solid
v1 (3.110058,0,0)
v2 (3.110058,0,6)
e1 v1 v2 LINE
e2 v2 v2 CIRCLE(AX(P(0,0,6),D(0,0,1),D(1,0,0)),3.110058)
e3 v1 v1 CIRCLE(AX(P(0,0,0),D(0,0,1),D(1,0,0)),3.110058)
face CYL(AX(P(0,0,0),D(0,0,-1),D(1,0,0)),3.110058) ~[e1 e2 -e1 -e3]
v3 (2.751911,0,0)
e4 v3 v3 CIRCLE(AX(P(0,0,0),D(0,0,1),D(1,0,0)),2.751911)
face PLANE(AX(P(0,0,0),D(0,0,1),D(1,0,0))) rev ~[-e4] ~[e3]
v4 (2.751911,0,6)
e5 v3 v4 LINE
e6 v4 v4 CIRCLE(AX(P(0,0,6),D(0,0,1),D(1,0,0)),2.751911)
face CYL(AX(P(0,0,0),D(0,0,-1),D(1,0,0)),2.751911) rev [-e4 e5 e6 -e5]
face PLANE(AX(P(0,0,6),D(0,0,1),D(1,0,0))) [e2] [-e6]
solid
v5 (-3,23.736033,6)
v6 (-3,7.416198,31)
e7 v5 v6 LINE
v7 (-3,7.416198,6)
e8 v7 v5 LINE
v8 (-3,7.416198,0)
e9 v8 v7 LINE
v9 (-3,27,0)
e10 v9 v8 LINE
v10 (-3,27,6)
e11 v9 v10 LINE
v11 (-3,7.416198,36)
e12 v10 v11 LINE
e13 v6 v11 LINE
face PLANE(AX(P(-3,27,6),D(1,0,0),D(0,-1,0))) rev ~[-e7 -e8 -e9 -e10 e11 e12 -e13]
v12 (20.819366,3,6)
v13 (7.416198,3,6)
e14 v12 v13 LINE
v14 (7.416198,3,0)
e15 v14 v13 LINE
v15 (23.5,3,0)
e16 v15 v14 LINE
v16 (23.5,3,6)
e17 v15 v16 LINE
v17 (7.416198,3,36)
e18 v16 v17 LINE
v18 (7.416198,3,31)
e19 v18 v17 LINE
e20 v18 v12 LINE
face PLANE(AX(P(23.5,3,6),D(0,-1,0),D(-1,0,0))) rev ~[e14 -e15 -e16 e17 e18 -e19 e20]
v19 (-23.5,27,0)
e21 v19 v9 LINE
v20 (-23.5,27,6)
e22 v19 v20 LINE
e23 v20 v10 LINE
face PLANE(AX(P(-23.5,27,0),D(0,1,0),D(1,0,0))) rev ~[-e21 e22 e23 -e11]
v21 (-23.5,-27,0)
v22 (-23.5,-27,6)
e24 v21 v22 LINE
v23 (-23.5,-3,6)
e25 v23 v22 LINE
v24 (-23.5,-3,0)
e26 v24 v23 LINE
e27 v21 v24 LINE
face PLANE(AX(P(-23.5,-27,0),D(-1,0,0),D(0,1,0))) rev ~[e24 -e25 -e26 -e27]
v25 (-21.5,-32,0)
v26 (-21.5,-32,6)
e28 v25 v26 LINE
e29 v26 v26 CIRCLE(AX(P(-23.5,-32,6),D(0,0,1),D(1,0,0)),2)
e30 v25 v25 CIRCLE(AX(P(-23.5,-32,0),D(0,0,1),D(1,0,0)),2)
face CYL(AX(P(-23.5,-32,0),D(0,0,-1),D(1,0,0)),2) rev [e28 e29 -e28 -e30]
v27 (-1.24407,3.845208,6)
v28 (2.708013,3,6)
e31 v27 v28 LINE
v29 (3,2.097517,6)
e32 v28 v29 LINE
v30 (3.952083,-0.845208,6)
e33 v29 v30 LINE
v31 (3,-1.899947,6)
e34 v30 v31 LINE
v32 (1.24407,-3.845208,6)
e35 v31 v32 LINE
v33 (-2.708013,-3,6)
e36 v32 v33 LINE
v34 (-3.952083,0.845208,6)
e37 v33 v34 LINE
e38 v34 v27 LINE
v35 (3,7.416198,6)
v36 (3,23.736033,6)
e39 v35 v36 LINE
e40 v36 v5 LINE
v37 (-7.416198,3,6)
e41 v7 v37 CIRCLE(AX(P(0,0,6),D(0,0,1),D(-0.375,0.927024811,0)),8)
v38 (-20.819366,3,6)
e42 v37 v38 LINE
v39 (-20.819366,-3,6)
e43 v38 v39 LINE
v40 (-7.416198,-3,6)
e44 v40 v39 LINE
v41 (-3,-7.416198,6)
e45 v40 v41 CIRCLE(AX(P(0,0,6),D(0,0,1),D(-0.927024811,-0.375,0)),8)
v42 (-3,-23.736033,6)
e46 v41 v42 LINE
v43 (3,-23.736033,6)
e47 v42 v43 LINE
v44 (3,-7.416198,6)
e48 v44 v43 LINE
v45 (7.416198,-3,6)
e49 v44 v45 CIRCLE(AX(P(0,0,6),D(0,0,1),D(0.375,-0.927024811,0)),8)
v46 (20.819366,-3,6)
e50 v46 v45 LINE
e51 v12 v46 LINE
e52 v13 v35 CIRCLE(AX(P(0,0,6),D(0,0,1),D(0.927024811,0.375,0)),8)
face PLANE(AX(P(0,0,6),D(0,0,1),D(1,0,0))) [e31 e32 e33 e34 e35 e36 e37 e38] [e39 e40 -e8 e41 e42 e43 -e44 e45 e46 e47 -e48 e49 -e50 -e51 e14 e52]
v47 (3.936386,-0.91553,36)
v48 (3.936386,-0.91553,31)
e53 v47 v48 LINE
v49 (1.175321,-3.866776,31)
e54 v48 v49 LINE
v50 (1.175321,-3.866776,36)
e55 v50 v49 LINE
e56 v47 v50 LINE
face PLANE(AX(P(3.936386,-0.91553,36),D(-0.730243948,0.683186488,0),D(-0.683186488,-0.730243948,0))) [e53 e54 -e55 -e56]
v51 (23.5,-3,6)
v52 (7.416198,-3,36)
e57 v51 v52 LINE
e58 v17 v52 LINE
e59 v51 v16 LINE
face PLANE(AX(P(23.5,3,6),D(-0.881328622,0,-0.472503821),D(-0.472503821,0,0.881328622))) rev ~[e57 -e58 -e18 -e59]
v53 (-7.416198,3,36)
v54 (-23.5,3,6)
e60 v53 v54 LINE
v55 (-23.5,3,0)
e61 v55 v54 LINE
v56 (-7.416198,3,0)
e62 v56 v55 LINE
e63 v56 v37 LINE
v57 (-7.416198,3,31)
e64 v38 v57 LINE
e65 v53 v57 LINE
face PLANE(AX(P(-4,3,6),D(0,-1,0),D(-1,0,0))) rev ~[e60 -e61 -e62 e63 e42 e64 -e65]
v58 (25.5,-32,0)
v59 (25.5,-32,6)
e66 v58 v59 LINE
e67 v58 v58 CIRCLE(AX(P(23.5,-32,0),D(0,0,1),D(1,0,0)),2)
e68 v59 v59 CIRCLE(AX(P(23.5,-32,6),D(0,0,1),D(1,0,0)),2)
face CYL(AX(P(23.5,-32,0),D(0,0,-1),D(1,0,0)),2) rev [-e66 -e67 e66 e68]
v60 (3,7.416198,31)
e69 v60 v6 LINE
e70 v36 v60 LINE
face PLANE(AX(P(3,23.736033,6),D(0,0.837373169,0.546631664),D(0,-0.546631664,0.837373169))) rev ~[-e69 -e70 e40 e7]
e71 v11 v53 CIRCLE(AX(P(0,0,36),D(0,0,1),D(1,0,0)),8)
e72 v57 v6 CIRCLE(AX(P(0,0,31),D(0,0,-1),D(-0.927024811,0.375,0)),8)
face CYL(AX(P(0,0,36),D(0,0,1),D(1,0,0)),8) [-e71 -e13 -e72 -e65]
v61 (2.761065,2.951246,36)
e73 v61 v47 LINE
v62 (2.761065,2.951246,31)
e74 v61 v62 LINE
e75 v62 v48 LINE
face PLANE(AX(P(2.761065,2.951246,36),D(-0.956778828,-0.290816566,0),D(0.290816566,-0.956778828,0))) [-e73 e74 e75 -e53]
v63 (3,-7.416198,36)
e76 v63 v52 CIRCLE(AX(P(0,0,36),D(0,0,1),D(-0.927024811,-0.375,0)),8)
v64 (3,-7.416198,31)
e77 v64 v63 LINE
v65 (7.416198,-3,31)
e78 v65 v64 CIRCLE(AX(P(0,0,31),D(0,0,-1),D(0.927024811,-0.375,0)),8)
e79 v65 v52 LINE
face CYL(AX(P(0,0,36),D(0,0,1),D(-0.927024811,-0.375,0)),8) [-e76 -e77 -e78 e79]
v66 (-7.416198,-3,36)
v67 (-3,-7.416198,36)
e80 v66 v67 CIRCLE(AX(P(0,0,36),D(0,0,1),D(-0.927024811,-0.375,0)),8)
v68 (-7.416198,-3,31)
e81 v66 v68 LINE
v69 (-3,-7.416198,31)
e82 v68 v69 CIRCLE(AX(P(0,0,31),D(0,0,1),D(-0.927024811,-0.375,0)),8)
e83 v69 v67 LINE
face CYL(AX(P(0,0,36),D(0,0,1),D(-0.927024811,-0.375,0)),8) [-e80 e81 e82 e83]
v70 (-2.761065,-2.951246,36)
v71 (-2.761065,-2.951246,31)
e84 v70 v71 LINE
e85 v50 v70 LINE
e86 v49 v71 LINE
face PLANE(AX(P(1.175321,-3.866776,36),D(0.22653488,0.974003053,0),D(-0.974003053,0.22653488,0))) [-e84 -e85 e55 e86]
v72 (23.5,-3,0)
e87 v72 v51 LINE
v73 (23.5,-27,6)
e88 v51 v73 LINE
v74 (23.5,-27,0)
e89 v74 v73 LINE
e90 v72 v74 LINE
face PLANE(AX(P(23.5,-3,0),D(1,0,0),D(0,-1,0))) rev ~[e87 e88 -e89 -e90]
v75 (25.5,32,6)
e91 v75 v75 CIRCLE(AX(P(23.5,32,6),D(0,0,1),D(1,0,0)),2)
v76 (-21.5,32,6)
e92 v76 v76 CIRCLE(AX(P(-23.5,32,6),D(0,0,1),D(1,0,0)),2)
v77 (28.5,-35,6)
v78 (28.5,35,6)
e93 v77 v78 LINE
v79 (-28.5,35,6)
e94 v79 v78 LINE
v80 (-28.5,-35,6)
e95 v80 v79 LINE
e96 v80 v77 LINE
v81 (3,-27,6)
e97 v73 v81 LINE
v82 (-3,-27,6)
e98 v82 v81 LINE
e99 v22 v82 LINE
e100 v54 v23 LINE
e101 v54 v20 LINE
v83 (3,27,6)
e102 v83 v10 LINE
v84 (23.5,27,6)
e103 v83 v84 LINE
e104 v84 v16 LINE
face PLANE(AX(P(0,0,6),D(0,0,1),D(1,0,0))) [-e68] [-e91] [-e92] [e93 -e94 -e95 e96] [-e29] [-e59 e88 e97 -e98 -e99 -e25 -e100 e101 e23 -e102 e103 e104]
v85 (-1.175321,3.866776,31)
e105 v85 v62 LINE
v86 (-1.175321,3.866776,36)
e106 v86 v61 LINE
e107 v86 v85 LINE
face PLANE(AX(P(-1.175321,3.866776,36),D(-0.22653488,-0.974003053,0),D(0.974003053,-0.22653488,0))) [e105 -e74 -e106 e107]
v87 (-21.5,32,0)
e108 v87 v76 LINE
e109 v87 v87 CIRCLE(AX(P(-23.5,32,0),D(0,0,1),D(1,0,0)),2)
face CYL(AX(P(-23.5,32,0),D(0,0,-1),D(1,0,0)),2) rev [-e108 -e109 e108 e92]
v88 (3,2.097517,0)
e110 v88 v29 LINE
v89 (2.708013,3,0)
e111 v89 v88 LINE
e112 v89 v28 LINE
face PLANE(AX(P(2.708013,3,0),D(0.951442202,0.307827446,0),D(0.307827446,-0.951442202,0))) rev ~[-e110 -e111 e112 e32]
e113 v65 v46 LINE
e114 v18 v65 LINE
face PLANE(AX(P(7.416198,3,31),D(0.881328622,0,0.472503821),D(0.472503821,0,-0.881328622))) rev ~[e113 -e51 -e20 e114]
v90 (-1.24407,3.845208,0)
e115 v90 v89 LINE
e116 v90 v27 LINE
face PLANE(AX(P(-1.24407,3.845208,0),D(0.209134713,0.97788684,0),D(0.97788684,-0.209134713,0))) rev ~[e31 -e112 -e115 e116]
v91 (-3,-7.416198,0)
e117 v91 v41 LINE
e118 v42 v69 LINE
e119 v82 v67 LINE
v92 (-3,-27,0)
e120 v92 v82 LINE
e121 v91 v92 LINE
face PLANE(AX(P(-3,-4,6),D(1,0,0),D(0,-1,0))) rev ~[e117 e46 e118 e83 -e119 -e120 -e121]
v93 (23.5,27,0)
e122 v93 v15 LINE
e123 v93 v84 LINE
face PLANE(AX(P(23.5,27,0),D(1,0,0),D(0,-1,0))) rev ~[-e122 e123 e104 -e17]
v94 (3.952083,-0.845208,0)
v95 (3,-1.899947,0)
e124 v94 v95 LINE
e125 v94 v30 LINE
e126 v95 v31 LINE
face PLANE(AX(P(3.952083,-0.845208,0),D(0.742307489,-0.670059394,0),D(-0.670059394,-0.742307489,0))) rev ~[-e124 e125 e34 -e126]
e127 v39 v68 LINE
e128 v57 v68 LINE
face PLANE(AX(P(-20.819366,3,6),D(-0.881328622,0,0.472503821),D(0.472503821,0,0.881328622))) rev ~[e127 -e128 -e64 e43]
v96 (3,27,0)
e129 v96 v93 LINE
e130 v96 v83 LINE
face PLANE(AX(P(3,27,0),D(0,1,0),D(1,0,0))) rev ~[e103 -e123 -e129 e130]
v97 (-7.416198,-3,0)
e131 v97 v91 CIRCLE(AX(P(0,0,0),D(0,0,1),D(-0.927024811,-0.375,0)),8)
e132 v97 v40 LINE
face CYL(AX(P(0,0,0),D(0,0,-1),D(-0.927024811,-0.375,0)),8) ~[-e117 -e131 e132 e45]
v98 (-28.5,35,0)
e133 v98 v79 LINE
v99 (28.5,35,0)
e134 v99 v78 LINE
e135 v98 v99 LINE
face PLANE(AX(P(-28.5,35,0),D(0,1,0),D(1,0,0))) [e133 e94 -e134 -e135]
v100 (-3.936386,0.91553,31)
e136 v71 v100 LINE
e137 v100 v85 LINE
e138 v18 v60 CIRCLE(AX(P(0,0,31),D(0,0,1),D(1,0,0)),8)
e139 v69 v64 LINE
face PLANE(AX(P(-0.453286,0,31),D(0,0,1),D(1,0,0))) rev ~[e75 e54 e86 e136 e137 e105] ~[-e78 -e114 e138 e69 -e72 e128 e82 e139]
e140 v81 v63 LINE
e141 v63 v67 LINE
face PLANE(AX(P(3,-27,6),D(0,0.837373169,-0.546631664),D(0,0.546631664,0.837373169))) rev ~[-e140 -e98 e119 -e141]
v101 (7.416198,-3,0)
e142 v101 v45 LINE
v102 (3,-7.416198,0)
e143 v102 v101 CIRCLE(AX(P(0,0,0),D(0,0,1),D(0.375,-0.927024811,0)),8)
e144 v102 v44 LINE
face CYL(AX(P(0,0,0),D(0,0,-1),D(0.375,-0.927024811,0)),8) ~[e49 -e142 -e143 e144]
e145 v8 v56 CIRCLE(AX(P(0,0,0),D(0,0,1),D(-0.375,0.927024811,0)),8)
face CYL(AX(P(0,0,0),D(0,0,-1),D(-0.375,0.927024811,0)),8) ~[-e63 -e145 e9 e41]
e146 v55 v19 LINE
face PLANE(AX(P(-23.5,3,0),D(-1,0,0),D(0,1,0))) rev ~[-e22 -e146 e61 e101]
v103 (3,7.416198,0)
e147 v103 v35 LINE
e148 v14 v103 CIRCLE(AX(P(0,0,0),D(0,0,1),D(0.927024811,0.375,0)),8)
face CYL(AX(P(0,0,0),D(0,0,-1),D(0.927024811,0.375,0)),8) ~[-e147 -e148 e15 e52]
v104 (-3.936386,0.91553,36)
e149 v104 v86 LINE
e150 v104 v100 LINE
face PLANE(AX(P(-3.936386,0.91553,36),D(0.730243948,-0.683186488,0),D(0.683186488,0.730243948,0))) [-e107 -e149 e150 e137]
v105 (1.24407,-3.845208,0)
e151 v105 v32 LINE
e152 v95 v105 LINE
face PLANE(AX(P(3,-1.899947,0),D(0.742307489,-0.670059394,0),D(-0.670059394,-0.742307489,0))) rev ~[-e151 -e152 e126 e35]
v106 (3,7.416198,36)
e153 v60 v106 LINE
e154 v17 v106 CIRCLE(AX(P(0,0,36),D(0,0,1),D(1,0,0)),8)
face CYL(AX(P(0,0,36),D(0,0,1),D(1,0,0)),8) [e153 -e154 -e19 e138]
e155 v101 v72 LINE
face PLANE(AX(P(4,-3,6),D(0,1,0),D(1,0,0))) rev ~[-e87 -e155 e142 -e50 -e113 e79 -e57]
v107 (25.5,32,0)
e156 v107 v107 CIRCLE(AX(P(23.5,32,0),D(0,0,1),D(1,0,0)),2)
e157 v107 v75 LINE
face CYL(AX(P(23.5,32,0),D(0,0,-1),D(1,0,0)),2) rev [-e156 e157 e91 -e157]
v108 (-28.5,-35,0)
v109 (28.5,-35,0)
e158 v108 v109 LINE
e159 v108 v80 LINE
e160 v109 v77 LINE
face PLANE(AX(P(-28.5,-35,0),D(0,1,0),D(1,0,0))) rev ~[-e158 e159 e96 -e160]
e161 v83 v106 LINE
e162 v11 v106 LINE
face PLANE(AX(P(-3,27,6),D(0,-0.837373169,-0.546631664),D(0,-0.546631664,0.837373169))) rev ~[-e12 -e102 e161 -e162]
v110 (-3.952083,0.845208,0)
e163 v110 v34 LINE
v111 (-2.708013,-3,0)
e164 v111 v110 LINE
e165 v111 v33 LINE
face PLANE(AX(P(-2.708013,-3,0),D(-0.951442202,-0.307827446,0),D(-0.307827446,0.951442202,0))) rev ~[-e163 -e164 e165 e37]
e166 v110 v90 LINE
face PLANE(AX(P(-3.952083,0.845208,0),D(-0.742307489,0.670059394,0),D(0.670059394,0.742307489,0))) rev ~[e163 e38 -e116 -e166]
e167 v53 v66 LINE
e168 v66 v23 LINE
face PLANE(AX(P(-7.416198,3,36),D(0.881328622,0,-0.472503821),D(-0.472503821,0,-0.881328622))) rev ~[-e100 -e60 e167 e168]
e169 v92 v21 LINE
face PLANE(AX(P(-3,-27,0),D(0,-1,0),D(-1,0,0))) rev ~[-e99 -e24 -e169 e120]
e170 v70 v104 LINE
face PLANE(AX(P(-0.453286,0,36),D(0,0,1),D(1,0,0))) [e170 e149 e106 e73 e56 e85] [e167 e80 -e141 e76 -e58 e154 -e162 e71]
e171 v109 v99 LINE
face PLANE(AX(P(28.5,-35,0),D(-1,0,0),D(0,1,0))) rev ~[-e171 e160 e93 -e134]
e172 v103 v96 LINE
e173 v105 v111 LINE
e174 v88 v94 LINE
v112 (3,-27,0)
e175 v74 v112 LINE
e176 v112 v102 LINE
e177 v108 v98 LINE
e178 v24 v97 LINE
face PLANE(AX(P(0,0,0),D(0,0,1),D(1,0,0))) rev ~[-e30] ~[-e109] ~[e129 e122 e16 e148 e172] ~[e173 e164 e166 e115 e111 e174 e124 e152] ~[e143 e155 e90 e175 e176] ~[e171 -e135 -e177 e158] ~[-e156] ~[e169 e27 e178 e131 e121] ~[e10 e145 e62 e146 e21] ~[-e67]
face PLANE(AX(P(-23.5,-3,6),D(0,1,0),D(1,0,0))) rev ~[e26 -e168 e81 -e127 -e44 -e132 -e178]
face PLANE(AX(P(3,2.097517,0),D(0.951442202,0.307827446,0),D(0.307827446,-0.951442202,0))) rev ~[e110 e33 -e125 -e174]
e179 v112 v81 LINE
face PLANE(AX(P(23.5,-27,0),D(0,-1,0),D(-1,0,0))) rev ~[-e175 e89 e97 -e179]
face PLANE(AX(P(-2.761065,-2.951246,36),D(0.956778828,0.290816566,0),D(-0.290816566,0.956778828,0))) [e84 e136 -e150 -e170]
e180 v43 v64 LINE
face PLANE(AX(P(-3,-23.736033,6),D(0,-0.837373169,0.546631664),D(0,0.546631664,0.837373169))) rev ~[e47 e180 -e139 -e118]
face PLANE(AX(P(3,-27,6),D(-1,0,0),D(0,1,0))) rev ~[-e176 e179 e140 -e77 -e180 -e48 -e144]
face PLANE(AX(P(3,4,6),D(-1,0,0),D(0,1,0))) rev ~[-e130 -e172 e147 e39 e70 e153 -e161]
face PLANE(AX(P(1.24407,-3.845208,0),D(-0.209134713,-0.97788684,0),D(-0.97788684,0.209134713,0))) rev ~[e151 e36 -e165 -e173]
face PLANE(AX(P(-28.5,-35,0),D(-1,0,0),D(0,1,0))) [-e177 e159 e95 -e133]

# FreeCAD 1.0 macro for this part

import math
import FreeCAD as App
import Part
import Sketcher
from FreeCAD import Vector

doc = App.newDocument("Part")
body = doc.addObject("PartDesign::Body", "Body")

# Sketch on XY plane
sketch1 = doc.addObject("Sketcher::SketchObject", "Sketch")
body.addObject(sketch1)
sketch1.AttachmentSupport = (doc.XY_Plane, [""])
sketch1.MapMode = "FlatFace"
sketch1.addGeometry(Part.LineSegment(Vector(-28.5, 35, 0), Vector(-28.5, -35, 0)), False)
sketch1.addGeometry(Part.LineSegment(Vector(-28.5, -35, 0), Vector(28.5, -35, 0)), False)
sketch1.addGeometry(Part.LineSegment(Vector(28.5, -35, 0), Vector(28.5, 35, 0)), False)
sketch1.addGeometry(Part.LineSegment(Vector(28.5, 35, 0), Vector(-28.5, 35, 0)), False)
sketch1.addGeometry(Part.Circle(Vector(-23.5, -32, 0), Vector(0, 0, 1), 2), False)
sketch1.addGeometry(Part.LineSegment(Vector(-3, -7.416198, 0), Vector(-3, -27, 0)), False)
sketch1.addGeometry(Part.LineSegment(Vector(-3, -27, 0), Vector(-23.5, -27, 0)), False)
sketch1.addGeometry(Part.LineSegment(Vector(-23.5, -27, 0), Vector(-23.5, -3, 0)), False)
sketch1.addGeometry(Part.LineSegment(Vector(-23.5, -3, 0), Vector(-7.416198, -3, 0)), False)
sketch1.addGeometry(Part.ArcOfCircle(Part.Circle(Vector(0, 0, 0), Vector(0, 0, 1), 8), math.radians(-157.975687), math.radians(-112.024313)), False)
sketch1.addGeometry(Part.Circle(Vector(23.5, -32, 0), Vector(0, 0, 1), 2), False)
sketch1.addGeometry(Part.LineSegment(Vector(7.416198, -3, 0), Vector(23.5, -3, 0)), False)
sketch1.addGeometry(Part.LineSegment(Vector(23.5, -3, 0), Vector(23.5, -27, 0)), False)
sketch1.addGeometry(Part.LineSegment(Vector(23.5, -27, 0), Vector(3, -27, 0)), False)
sketch1.addGeometry(Part.LineSegment(Vector(3, -27, 0), Vector(3, -7.416198, 0)), False)
sketch1.addGeometry(Part.ArcOfCircle(Part.Circle(Vector(0, 0, 0), Vector(0, 0, 1), 8), math.radians(-67.975687), math.radians(-22.024313)), False)
sketch1.addGeometry(Part.LineSegment(Vector(-7.416198, 3, 0), Vector(-23.5, 3, 0)), False)
sketch1.addGeometry(Part.LineSegment(Vector(-23.5, 3, 0), Vector(-23.5, 27, 0)), False)
sketch1.addGeometry(Part.LineSegment(Vector(-23.5, 27, 0), Vector(-3, 27, 0)), False)
sketch1.addGeometry(Part.LineSegment(Vector(-3, 27, 0), Vector(-3, 7.416198, 0)), False)
sketch1.addGeometry(Part.ArcOfCircle(Part.Circle(Vector(0, 0, 0), Vector(0, 0, 1), 8), math.radians(112.024313), math.radians(157.975687)), False)
sketch1.addGeometry(Part.Circle(Vector(-23.5, 32, 0), Vector(0, 0, 1), 2), False)
sketch1.addGeometry(Part.LineSegment(Vector(1.24407, -3.845208, 0), Vector(-2.708013, -3, 0)), False)
sketch1.addGeometry(Part.LineSegment(Vector(-2.708013, -3, 0), Vector(-3.952083, 0.845208, 0)), False)
sketch1.addGeometry(Part.LineSegment(Vector(-3.952083, 0.845208, 0), Vector(-1.24407, 3.845208, 0)), False)
sketch1.addGeometry(Part.LineSegment(Vector(-1.24407, 3.845208, 0), Vector(2.708013, 3, 0)), False)
sketch1.addGeometry(Part.LineSegment(Vector(2.708013, 3, 0), Vector(3, 2.097517, 0)), False)
sketch1.addGeometry(Part.LineSegment(Vector(3, 2.097517, 0), Vector(3.952083, -0.845208, 0)), False)
sketch1.addGeometry(Part.LineSegment(Vector(3.952083, -0.845208, 0), Vector(3, -1.899947, 0)), False)
sketch1.addGeometry(Part.LineSegment(Vector(3, -1.899947, 0), Vector(1.24407, -3.845208, 0)), False)
sketch1.addGeometry(Part.LineSegment(Vector(23.5, 27, 0), Vector(23.5, 3, 0)), False)
sketch1.addGeometry(Part.LineSegment(Vector(23.5, 3, 0), Vector(7.416198, 3, 0)), False)
sketch1.addGeometry(Part.ArcOfCircle(Part.Circle(Vector(0, 0, 0), Vector(0, 0, 1), 8), math.radians(22.024313), math.radians(67.975687)), False)
sketch1.addGeometry(Part.LineSegment(Vector(3, 7.416198, 0), Vector(3, 27, 0)), False)
sketch1.addGeometry(Part.LineSegment(Vector(3, 27, 0), Vector(23.5, 27, 0)), False)
sketch1.addGeometry(Part.Circle(Vector(23.5, 32, 0), Vector(0, 0, 1), 2), False)
sketch1.addConstraint(Sketcher.Constraint("Coincident", 0, 2, 1, 1))
sketch1.addConstraint(Sketcher.Constraint("Coincident", 1, 2, 2, 1))
sketch1.addConstraint(Sketcher.Constraint("Coincident", 2, 2, 3, 1))
sketch1.addConstraint(Sketcher.Constraint("Coincident", 3, 2, 0, 1))
sketch1.addConstraint(Sketcher.Constraint("Coincident", 5, 2, 6, 1))
sketch1.addConstraint(Sketcher.Constraint("Coincident", 6, 2, 7, 1))
sketch1.addConstraint(Sketcher.Constraint("Coincident", 7, 2, 8, 1))
sketch1.addConstraint(Sketcher.Constraint("Coincident", 8, 2, 9, 1))
sketch1.addConstraint(Sketcher.Constraint("Coincident", 9, 2, 5, 1))
sketch1.addConstraint(Sketcher.Constraint("Coincident", 11, 2, 12, 1))
sketch1.addConstraint(Sketcher.Constraint("Coincident", 12, 2, 13, 1))
sketch1.addConstraint(Sketcher.Constraint("Coincident", 13, 2, 14, 1))
sketch1.addConstraint(Sketcher.Constraint("Coincident", 14, 2, 15, 1))
sketch1.addConstraint(Sketcher.Constraint("Coincident", 15, 2, 11, 1))
sketch1.addConstraint(Sketcher.Constraint("Coincident", 16, 2, 17, 1))
sketch1.addConstraint(Sketcher.Constraint("Coincident", 17, 2, 18, 1))
sketch1.addConstraint(Sketcher.Constraint("Coincident", 18, 2, 19, 1))
sketch1.addConstraint(Sketcher.Constraint("Coincident", 19, 2, 20, 1))
sketch1.addConstraint(Sketcher.Constraint("Coincident", 20, 2, 16, 1))
sketch1.addConstraint(Sketcher.Constraint("Coincident", 22, 2, 23, 1))
sketch1.addConstraint(Sketcher.Constraint("Coincident", 23, 2, 24, 1))
sketch1.addConstraint(Sketcher.Constraint("Coincident", 24, 2, 25, 1))
sketch1.addConstraint(Sketcher.Constraint("Coincident", 25, 2, 26, 1))
sketch1.addConstraint(Sketcher.Constraint("Coincident", 26, 2, 27, 1))
sketch1.addConstraint(Sketcher.Constraint("Coincident", 27, 2, 28, 1))
sketch1.addConstraint(Sketcher.Constraint("Coincident", 28, 2, 29, 1))
sketch1.addConstraint(Sketcher.Constraint("Coincident", 29, 2, 22, 1))
sketch1.addConstraint(Sketcher.Constraint("Coincident", 30, 2, 31, 1))
sketch1.addConstraint(Sketcher.Constraint("Coincident", 31, 2, 32, 1))
sketch1.addConstraint(Sketcher.Constraint("Coincident", 32, 2, 33, 1))
sketch1.addConstraint(Sketcher.Constraint("Coincident", 33, 2, 34, 1))
sketch1.addConstraint(Sketcher.Constraint("Coincident", 34, 2, 30, 1))
sketch1.addConstraint(Sketcher.Constraint("Vertical", 0))
sketch1.addConstraint(Sketcher.Constraint("Horizontal", 1))
sketch1.addConstraint(Sketcher.Constraint("Vertical", 2))
sketch1.addConstraint(Sketcher.Constraint("Horizontal", 3))
sketch1.addConstraint(Sketcher.Constraint("Vertical", 5))
sketch1.addConstraint(Sketcher.Constraint("Horizontal", 6))
sketch1.addConstraint(Sketcher.Constraint("Vertical", 7))
sketch1.addConstraint(Sketcher.Constraint("Horizontal", 8))
sketch1.addConstraint(Sketcher.Constraint("Horizontal", 11))
sketch1.addConstraint(Sketcher.Constraint("Vertical", 12))
sketch1.addConstraint(Sketcher.Constraint("Horizontal", 13))
sketch1.addConstraint(Sketcher.Constraint("Vertical", 14))
sketch1.addConstraint(Sketcher.Constraint("Horizontal", 16))
sketch1.addConstraint(Sketcher.Constraint("Vertical", 17))
sketch1.addConstraint(Sketcher.Constraint("Horizontal", 18))
sketch1.addConstraint(Sketcher.Constraint("Vertical", 19))
sketch1.addConstraint(Sketcher.Constraint("Vertical", 30))
sketch1.addConstraint(Sketcher.Constraint("Horizontal", 31))
sketch1.addConstraint(Sketcher.Constraint("Vertical", 33))
sketch1.addConstraint(Sketcher.Constraint("Horizontal", 34))
sketch1.addConstraint(Sketcher.Constraint("Coincident", 9, 3, -1, 1))
sketch1.addConstraint(Sketcher.Constraint("Coincident", 15, 3, -1, 1))
sketch1.addConstraint(Sketcher.Constraint("Coincident", 20, 3, -1, 1))
sketch1.addConstraint(Sketcher.Constraint("Coincident", 32, 3, -1, 1))
sketch1.addConstraint(Sketcher.Constraint("Equal", 4, 10))
sketch1.addConstraint(Sketcher.Constraint("Equal", 9, 15))
sketch1.addConstraint(Sketcher.Constraint("Equal", 15, 20))
sketch1.addConstraint(Sketcher.Constraint("Equal", 10, 21))
sketch1.addConstraint(Sketcher.Constraint("Equal", 20, 32))
sketch1.addConstraint(Sketcher.Constraint("Equal", 21, 35))
sketch1.addConstraint(Sketcher.Constraint("Symmetric", 10, 3, 21, 3, -1, 1))
sketch1.addConstraint(Sketcher.Constraint("Symmetric", 4, 3, 35, 3, -1, 1))
sketch1.addConstraint(Sketcher.Constraint("Symmetric", 0, 2, 2, 2, -1, 1))
sketch1.addConstraint(Sketcher.Constraint("Symmetric", 11, 2, 16, 2, -1, 1))
sketch1.addConstraint(Sketcher.Constraint("Symmetric", 13, 2, 18, 2, -1, 1))
sketch1.addConstraint(Sketcher.Constraint("Symmetric", 22, 2, 25, 2, -1, 1))
sketch1.addConstraint(Sketcher.Constraint("Symmetric", 23, 2, 27, 2, -1, 1))
sketch1.addConstraint(Sketcher.Constraint("Symmetric", 24, 2, 29, 2, -1, 1))
sketch1.addConstraint(Sketcher.Constraint("Symmetric", 7, 2, 30, 2, -1, 1))
sketch1.addConstraint(Sketcher.Constraint("Symmetric", 5, 2, 33, 2, -1, 1))
sketch1.addConstraint(Sketcher.Constraint("Symmetric", 4, 3, 10, 3, -2))
sketch1.addConstraint(Sketcher.Constraint("Symmetric", 7, 2, 11, 2, -2))
sketch1.addConstraint(Sketcher.Constraint("Symmetric", 5, 2, 13, 2, -2))
sketch1.addConstraint(Sketcher.Constraint("Parallel", 23, 26))
sketch1.addConstraint(Sketcher.Constraint("Parallel", 24, 28))
sketch1.addConstraint(Sketcher.Constraint("Horizontal", 15, 2, 22, 2))
sketch1.addConstraint(Sketcher.Constraint("Vertical", 21, 3, 6, 2))
sketch1.addConstraint(Sketcher.Constraint("Vertical", 14, 2, 26, 2))
sketch1.addConstraint(Sketcher.Constraint("Vertical", 26, 2, 28, 2))
sketch1.addConstraint(Sketcher.Constraint("Equal", 22, 23))
sketch1.addConstraint(Sketcher.Constraint("Equal", 23, 24))
sketch1.addConstraint(Sketcher.Constraint("Diameter", 4, 4.0))
sketch1.addConstraint(Sketcher.Constraint("Radius", 9, 8.0))
sketch1.addConstraint(Sketcher.Constraint("DistanceX", 1, 1, 1, 2, 57.0))
sketch1.addConstraint(Sketcher.Constraint("DistanceY", 0, 2, 0, 1, 70.0))
sketch1.addConstraint(Sketcher.Constraint("DistanceY", 7, 1, 7, 2, 24.0))
sketch1.addConstraint(Sketcher.Constraint("DistanceX", 6, 2, 6, 1, 20.5))
sketch1.addConstraint(Sketcher.Constraint("DistanceY", 4, 3, -1, 1, 32.0))
sketch1.addConstraint(Sketcher.Constraint("DistanceX", 5, 2, -1, 1, 3.0))
sketch1.addConstraint(Sketcher.Constraint("DistanceY", 5, 2, -1, 1, 27.0))
sketch1.addConstraint(Sketcher.Constraint("DistanceY", 23, 2, 24, 2, 3.0))
sketch1.addConstraint(Sketcher.Constraint("Distance", 22, 4.041452))
sketch1.addConstraint(Sketcher.Constraint("Distance", 26, 0.948542))
pad1 = doc.addObject("PartDesign::Pad", "Pad")
body.addObject(pad1)
pad1.Profile = sketch1
pad1.Length = 6

# Sketch on XY plane
sketch2 = doc.addObject("Sketcher::SketchObject", "Sketch001")
body.addObject(sketch2)
sketch2.AttachmentSupport = (doc.XY_Plane, [""])
sketch2.MapMode = "FlatFace"
sketch2.AttachmentOffset = App.Placement(Vector(0, 0, 6), App.Rotation())
sketch2.addGeometry(Part.ArcOfCircle(Part.Circle(Vector(0, 0, 0), Vector(0, 0, 1), 5), math.radians(-126.869898), math.radians(-53.130102)), False)
sketch2.addGeometry(Part.LineSegment(Vector(-3, -4, 0), Vector(-3, -27, 0)), False)
sketch2.addGeometry(Part.LineSegment(Vector(-3, -27, 0), Vector(3, -27, 0)), False)
sketch2.addGeometry(Part.LineSegment(Vector(3, -27, 0), Vector(3, -4, 0)), False)
sketch2.addGeometry(Part.LineSegment(Vector(23.5, 3, 0), Vector(4, 3, 0)), False)
sketch2.addGeometry(Part.ArcOfCircle(Part.Circle(Vector(0, 0, 0), Vector(0, 0, 1), 5), math.radians(0), math.radians(36.869898)), False)
sketch2.addGeometry(Part.ArcOfCircle(Part.Circle(Vector(0, 0, 0), Vector(0, 0, 1), 5), math.radians(-36.869898), math.radians(0)), False)
sketch2.addGeometry(Part.LineSegment(Vector(4, -3, 0), Vector(23.5, -3, 0)), False)
sketch2.addGeometry(Part.LineSegment(Vector(23.5, -3, 0), Vector(23.5, 3, 0)), False)
sketch2.addGeometry(Part.LineSegment(Vector(3, 27, 0), Vector(-3, 27, 0)), False)
sketch2.addGeometry(Part.LineSegment(Vector(-3, 27, 0), Vector(-3, 4, 0)), False)
sketch2.addGeometry(Part.ArcOfCircle(Part.Circle(Vector(0, 0, 0), Vector(0, 0, 1), 5), math.radians(53.130102), math.radians(126.869898)), False)
sketch2.addGeometry(Part.LineSegment(Vector(3, 4, 0), Vector(3, 27, 0)), False)
sketch2.addGeometry(Part.LineSegment(Vector(-4, 3, 0), Vector(-23.5, 3, 0)), False)
sketch2.addGeometry(Part.LineSegment(Vector(-23.5, 3, 0), Vector(-23.5, -3, 0)), False)
sketch2.addGeometry(Part.LineSegment(Vector(-23.5, -3, 0), Vector(-4, -3, 0)), False)
sketch2.addGeometry(Part.ArcOfCircle(Part.Circle(Vector(0, 0, 0), Vector(0, 0, 1), 5), math.radians(143.130102), math.radians(216.869898)), False)
sketch2.addConstraint(Sketcher.Constraint("Coincident", 0, 1, 1, 1))
sketch2.addConstraint(Sketcher.Constraint("Coincident", 1, 2, 2, 1))
sketch2.addConstraint(Sketcher.Constraint("Coincident", 2, 2, 3, 1))
sketch2.addConstraint(Sketcher.Constraint("Coincident", 3, 2, 0, 2))
sketch2.addConstraint(Sketcher.Constraint("Coincident", 4, 2, 5, 2))
sketch2.addConstraint(Sketcher.Constraint("Tangent", 5, 1, 6, 2))
sketch2.addConstraint(Sketcher.Constraint("Coincident", 6, 1, 7, 1))
sketch2.addConstraint(Sketcher.Constraint("Coincident", 7, 2, 8, 1))
sketch2.addConstraint(Sketcher.Constraint("Coincident", 8, 2, 4, 1))
sketch2.addConstraint(Sketcher.Constraint("Coincident", 9, 2, 10, 1))
sketch2.addConstraint(Sketcher.Constraint("Coincident", 10, 2, 11, 2))
sketch2.addConstraint(Sketcher.Constraint("Coincident", 11, 1, 12, 1))
sketch2.addConstraint(Sketcher.Constraint("Coincident", 12, 2, 9, 1))
sketch2.addConstraint(Sketcher.Constraint("Coincident", 13, 2, 14, 1))
sketch2.addConstraint(Sketcher.Constraint("Coincident", 14, 2, 15, 1))
sketch2.addConstraint(Sketcher.Constraint("Coincident", 15, 2, 16, 2))
sketch2.addConstraint(Sketcher.Constraint("Coincident", 16, 1, 13, 1))
sketch2.addConstraint(Sketcher.Constraint("Vertical", 1))
sketch2.addConstraint(Sketcher.Constraint("Horizontal", 2))
sketch2.addConstraint(Sketcher.Constraint("Vertical", 3))
sketch2.addConstraint(Sketcher.Constraint("Horizontal", 4))
sketch2.addConstraint(Sketcher.Constraint("Horizontal", 7))
sketch2.addConstraint(Sketcher.Constraint("Vertical", 8))
sketch2.addConstraint(Sketcher.Constraint("Horizontal", 9))
sketch2.addConstraint(Sketcher.Constraint("Vertical", 10))
sketch2.addConstraint(Sketcher.Constraint("Vertical", 12))
sketch2.addConstraint(Sketcher.Constraint("Horizontal", 13))
sketch2.addConstraint(Sketcher.Constraint("Vertical", 14))
sketch2.addConstraint(Sketcher.Constraint("Horizontal", 15))
sketch2.addConstraint(Sketcher.Constraint("Coincident", 0, 3, -1, 1))
sketch2.addConstraint(Sketcher.Constraint("Coincident", 5, 3, -1, 1))
sketch2.addConstraint(Sketcher.Constraint("Coincident", 11, 3, -1, 1))
sketch2.addConstraint(Sketcher.Constraint("Coincident", 16, 3, -1, 1))
sketch2.addConstraint(Sketcher.Constraint("Equal", 0, 5))
sketch2.addConstraint(Sketcher.Constraint("Equal", 5, 6))
sketch2.addConstraint(Sketcher.Constraint("Equal", 6, 11))
sketch2.addConstraint(Sketcher.Constraint("Equal", 11, 16))
sketch2.addConstraint(Sketcher.Constraint("Symmetric", 2, 2, 9, 2, -1, 1))
sketch2.addConstraint(Sketcher.Constraint("Symmetric", 7, 2, 13, 2, -1, 1))
sketch2.addConstraint(Sketcher.Constraint("PointOnObject", 5, 1, -1))
sketch2.addConstraint(Sketcher.Constraint("Horizontal", 0, 1, 3, 2))
sketch2.addConstraint(Sketcher.Constraint("Horizontal", 10, 2, 11, 1))
sketch2.addConstraint(Sketcher.Constraint("Horizontal", 8, 2, 13, 2))
sketch2.addConstraint(Sketcher.Constraint("Horizontal", 7, 2, 14, 2))
sketch2.addConstraint(Sketcher.Constraint("Equal", 9, 8))
sketch2.addConstraint(Sketcher.Constraint("Radius", 0, 5.0))
sketch2.addConstraint(Sketcher.Constraint("DistanceX", 2, 1, 2, 2, 6.0))
sketch2.addConstraint(Sketcher.Constraint("DistanceY", 1, 2, 1, 1, 23.0))
sketch2.addConstraint(Sketcher.Constraint("DistanceX", 4, 2, 4, 1, 19.5))
pad2 = doc.addObject("PartDesign::Pad", "Pad001")
body.addObject(pad2)
pad2.Profile = sketch2
pad2.Length = 30

# Sketch on XY plane
sketch3 = doc.addObject("Sketcher::SketchObject", "Sketch002")
body.addObject(sketch3)
sketch3.AttachmentSupport = (doc.XY_Plane, [""])
sketch3.MapMode = "FlatFace"
sketch3.AttachmentOffset = App.Placement(Vector(0, 0, 36), App.Rotation())
sketch3.addGeometry(Part.ArcOfCircle(Part.Circle(Vector(0, 0, 0), Vector(0, 0, 1), 8), math.radians(-157.975687), math.radians(0)), False)
sketch3.addGeometry(Part.ArcOfCircle(Part.Circle(Vector(0, 0, 0), Vector(0, 0, 1), 8), math.radians(0), math.radians(157.975687)), False)
sketch3.addGeometry(Part.LineSegment(Vector(-7.416198, 3, 0), Vector(-4, 3, 0)), False)
sketch3.addGeometry(Part.ArcOfCircle(Part.Circle(Vector(0, 0, 0), Vector(0, 0, 1), 5), math.radians(143.130102), math.radians(216.869898)), False)
sketch3.addGeometry(Part.LineSegment(Vector(-4, -3, 0), Vector(-7.416198, -3, 0)), False)
sketch3.addGeometry(Part.LineSegment(Vector(1.175321, -3.866776, 0), Vector(-2.761065, -2.951246, 0)), False)
sketch3.addGeometry(Part.LineSegment(Vector(-2.761065, -2.951246, 0), Vector(-3.936386, 0.91553, 0)), False)
sketch3.addGeometry(Part.LineSegment(Vector(-3.936386, 0.91553, 0), Vector(-1.175321, 3.866776, 0)), False)
sketch3.addGeometry(Part.LineSegment(Vector(-1.175321, 3.866776, 0), Vector(2.761065, 2.951246, 0)), False)
sketch3.addGeometry(Part.LineSegment(Vector(2.761065, 2.951246, 0), Vector(3.936386, -0.91553, 0)), False)
sketch3.addGeometry(Part.LineSegment(Vector(3.936386, -0.91553, 0), Vector(1.175321, -3.866776, 0)), False)
sketch3.addConstraint(Sketcher.Constraint("Tangent", 0, 2, 1, 1))
sketch3.addConstraint(Sketcher.Constraint("Coincident", 1, 2, 2, 1))
sketch3.addConstraint(Sketcher.Constraint("Coincident", 2, 2, 3, 1))
sketch3.addConstraint(Sketcher.Constraint("Coincident", 3, 2, 4, 1))
sketch3.addConstraint(Sketcher.Constraint("Coincident", 4, 2, 0, 1))
sketch3.addConstraint(Sketcher.Constraint("Coincident", 5, 2, 6, 1))
sketch3.addConstraint(Sketcher.Constraint("Coincident", 6, 2, 7, 1))
sketch3.addConstraint(Sketcher.Constraint("Coincident", 7, 2, 8, 1))
sketch3.addConstraint(Sketcher.Constraint("Coincident", 8, 2, 9, 1))
sketch3.addConstraint(Sketcher.Constraint("Coincident", 9, 2, 10, 1))
sketch3.addConstraint(Sketcher.Constraint("Coincident", 10, 2, 5, 1))
sketch3.addConstraint(Sketcher.Constraint("Horizontal", 2))
sketch3.addConstraint(Sketcher.Constraint("Horizontal", 4))
sketch3.addConstraint(Sketcher.Constraint("Coincident", 0, 3, -1, 1))
sketch3.addConstraint(Sketcher.Constraint("Coincident", 3, 3, -1, 1))
sketch3.addConstraint(Sketcher.Constraint("Equal", 0, 1))
sketch3.addConstraint(Sketcher.Constraint("Symmetric", 5, 2, 8, 2, -1, 1))
sketch3.addConstraint(Sketcher.Constraint("Symmetric", 6, 2, 9, 2, -1, 1))
sketch3.addConstraint(Sketcher.Constraint("Symmetric", 7, 2, 10, 2, -1, 1))
sketch3.addConstraint(Sketcher.Constraint("PointOnObject", 0, 2, -1))
sketch3.addConstraint(Sketcher.Constraint("Vertical", 2, 2, 3, 2))
sketch3.addConstraint(Sketcher.Constraint("Equal", 5, 6))
sketch3.addConstraint(Sketcher.Constraint("Equal", 6, 7))
sketch3.addConstraint(Sketcher.Constraint("Radius", 0, 8.0))
sketch3.addConstraint(Sketcher.Constraint("Radius", 3, 5.0))
sketch3.addConstraint(Sketcher.Constraint("DistanceY", -1, 1, 1, 2, 3.0))
sketch3.addConstraint(Sketcher.Constraint("Distance", 5, 4.041452))
sketch3.addConstraint(Sketcher.Constraint("DistanceY", -1, 1, 6, 2, 0.91553))
sketch3.addConstraint(Sketcher.Constraint("DistanceX", 7, 2, -1, 1, 1.175321))
sketch3.addConstraint(Sketcher.Constraint("DistanceX", 6, 2, 5, 2, 1.175321))
pad3 = doc.addObject("PartDesign::Pad", "Pad002")
body.addObject(pad3)
pad3.Profile = sketch3
pad3.Length = 5
pad3.Reversed = True

# Sketch on YZ plane
sketch4 = doc.addObject("Sketcher::SketchObject", "Sketch003")
body.addObject(sketch4)
sketch4.AttachmentSupport = (doc.YZ_Plane, [""])
sketch4.MapMode = "FlatFace"
sketch4.AttachmentOffset = App.Placement(Vector(0, 0, 3), App.Rotation())
sketch4.addGeometry(Part.LineSegment(Vector(-27, 6, 0), Vector(-7.416198, 36, 0)), False)
sketch4.addGeometry(Part.LineSegment(Vector(-7.416198, 36, 0), Vector(-27, 36, 0)), False)
sketch4.addGeometry(Part.LineSegment(Vector(-27, 36, 0), Vector(-27, 6, 0)), False)
sketch4.addConstraint(Sketcher.Constraint("Coincident", 0, 2, 1, 1))
sketch4.addConstraint(Sketcher.Constraint("Coincident", 1, 2, 2, 1))
sketch4.addConstraint(Sketcher.Constraint("Coincident", 2, 2, 0, 1))
sketch4.addConstraint(Sketcher.Constraint("Horizontal", 1))
sketch4.addConstraint(Sketcher.Constraint("Vertical", 2))
sketch4.addConstraint(Sketcher.Constraint("DistanceY", 2, 2, 2, 1, 30.0))
sketch4.addConstraint(Sketcher.Constraint("DistanceY", -1, 1, 0, 2, 36.0))
sketch4.addConstraint(Sketcher.Constraint("DistanceX", 1, 2, -1, 1, 27.0))
sketch4.addConstraint(Sketcher.Constraint("DistanceX", 1, 2, 1, 1, 19.583802))
pocket1 = doc.addObject("PartDesign::Pocket", "Pocket")
body.addObject(pocket1)
pocket1.Profile = sketch4
pocket1.Length = 25

# Sketch on XZ plane
sketch5 = doc.addObject("Sketcher::SketchObject", "Sketch004")
body.addObject(sketch5)
sketch5.AttachmentSupport = (doc.XZ_Plane, [""])
sketch5.MapMode = "FlatFace"
sketch5.AttachmentOffset = App.Placement(Vector(0, 0, -3), App.Rotation())
sketch5.addGeometry(Part.LineSegment(Vector(-23.5, 36, 0), Vector(-7.416198, 36, 0)), False)
sketch5.addGeometry(Part.LineSegment(Vector(-7.416198, 36, 0), Vector(-23.5, 6, 0)), False)
sketch5.addGeometry(Part.LineSegment(Vector(-23.5, 6, 0), Vector(-23.5, 36, 0)), False)
sketch5.addConstraint(Sketcher.Constraint("Coincident", 0, 2, 1, 1))
sketch5.addConstraint(Sketcher.Constraint("Coincident", 1, 2, 2, 1))
sketch5.addConstraint(Sketcher.Constraint("Coincident", 2, 2, 0, 1))
sketch5.addConstraint(Sketcher.Constraint("Horizontal", 0))
sketch5.addConstraint(Sketcher.Constraint("Vertical", 2))
sketch5.addConstraint(Sketcher.Constraint("DistanceY", 2, 1, 2, 2, 30.0))
sketch5.addConstraint(Sketcher.Constraint("DistanceY", -1, 1, 0, 2, 36.0))
sketch5.addConstraint(Sketcher.Constraint("DistanceX", 1, 2, -1, 1, 23.5))
sketch5.addConstraint(Sketcher.Constraint("DistanceX", 0, 1, 0, 2, 16.083802))
pocket2 = doc.addObject("PartDesign::Pocket", "Pocket001")
body.addObject(pocket2)
pocket2.Profile = sketch5
pocket2.Length = 25
pocket2.Reversed = True

# Sketch on YZ plane
sketch6 = doc.addObject("Sketcher::SketchObject", "Sketch005")
body.addObject(sketch6)
sketch6.AttachmentSupport = (doc.YZ_Plane, [""])
sketch6.MapMode = "FlatFace"
sketch6.AttachmentOffset = App.Placement(Vector(0, 0, -3), App.Rotation())
sketch6.addGeometry(Part.LineSegment(Vector(27, 6, 0), Vector(7.416198, 36, 0)), False)
sketch6.addGeometry(Part.LineSegment(Vector(7.416198, 36, 0), Vector(27, 36, 0)), False)
sketch6.addGeometry(Part.LineSegment(Vector(27, 36, 0), Vector(27, 6, 0)), False)
sketch6.addConstraint(Sketcher.Constraint("Coincident", 0, 2, 1, 1))
sketch6.addConstraint(Sketcher.Constraint("Coincident", 1, 2, 2, 1))
sketch6.addConstraint(Sketcher.Constraint("Coincident", 2, 2, 0, 1))
sketch6.addConstraint(Sketcher.Constraint("Horizontal", 1))
sketch6.addConstraint(Sketcher.Constraint("Vertical", 2))
sketch6.addConstraint(Sketcher.Constraint("DistanceY", 2, 2, 2, 1, 30.0))
sketch6.addConstraint(Sketcher.Constraint("DistanceY", -1, 1, 0, 2, 36.0))
sketch6.addConstraint(Sketcher.Constraint("DistanceX", -1, 1, 1, 2, 27.0))
sketch6.addConstraint(Sketcher.Constraint("DistanceX", 1, 1, 1, 2, 19.583802))
pocket3 = doc.addObject("PartDesign::Pocket", "Pocket002")
body.addObject(pocket3)
pocket3.Profile = sketch6
pocket3.Length = 25
pocket3.Reversed = True

# Sketch on XZ plane
sketch7 = doc.addObject("Sketcher::SketchObject", "Sketch006")
body.addObject(sketch7)
sketch7.AttachmentSupport = (doc.XZ_Plane, [""])
sketch7.MapMode = "FlatFace"
sketch7.AttachmentOffset = App.Placement(Vector(0, 0, -3), App.Rotation())
sketch7.addGeometry(Part.LineSegment(Vector(23.5, 6, 0), Vector(7.416198, 36, 0)), False)
sketch7.addGeometry(Part.LineSegment(Vector(7.416198, 36, 0), Vector(23.5, 36, 0)), False)
sketch7.addGeometry(Part.LineSegment(Vector(23.5, 36, 0), Vector(23.5, 6, 0)), False)
sketch7.addConstraint(Sketcher.Constraint("Coincident", 0, 2, 1, 1))
sketch7.addConstraint(Sketcher.Constraint("Coincident", 1, 2, 2, 1))
sketch7.addConstraint(Sketcher.Constraint("Coincident", 2, 2, 0, 1))
sketch7.addConstraint(Sketcher.Constraint("Horizontal", 1))
sketch7.addConstraint(Sketcher.Constraint("Vertical", 2))
sketch7.addConstraint(Sketcher.Constraint("DistanceY", 2, 2, 2, 1, 30.0))
sketch7.addConstraint(Sketcher.Constraint("DistanceY", -1, 1, 0, 2, 36.0))
sketch7.addConstraint(Sketcher.Constraint("DistanceX", -1, 1, 1, 2, 23.5))
sketch7.addConstraint(Sketcher.Constraint("DistanceX", 1, 1, 1, 2, 16.083802))
pocket4 = doc.addObject("PartDesign::Pocket", "Pocket003")
body.addObject(pocket4)
pocket4.Profile = sketch7
pocket4.Length = 25
pocket4.Reversed = True

# Sketch on YZ plane
sketch8 = doc.addObject("Sketcher::SketchObject", "Sketch007")
body.addObject(sketch8)
sketch8.AttachmentSupport = (doc.YZ_Plane, [""])
sketch8.MapMode = "FlatFace"
sketch8.AttachmentOffset = App.Placement(Vector(0, 0, 3), App.Rotation())
sketch8.addGeometry(Part.LineSegment(Vector(4, 31, 0), Vector(4, 6, 0)), False)
sketch8.addGeometry(Part.LineSegment(Vector(4, 6, 0), Vector(23.736033, 6, 0)), False)
sketch8.addGeometry(Part.LineSegment(Vector(23.736033, 6, 0), Vector(7.416198, 31, 0)), False)
sketch8.addGeometry(Part.LineSegment(Vector(7.416198, 31, 0), Vector(4, 31, 0)), False)
sketch8.addConstraint(Sketcher.Constraint("Coincident", 0, 2, 1, 1))
sketch8.addConstraint(Sketcher.Constraint("Coincident", 1, 2, 2, 1))
sketch8.addConstraint(Sketcher.Constraint("Coincident", 2, 2, 3, 1))
sketch8.addConstraint(Sketcher.Constraint("Coincident", 3, 2, 0, 1))
sketch8.addConstraint(Sketcher.Constraint("Vertical", 0))
sketch8.addConstraint(Sketcher.Constraint("Horizontal", 1))
sketch8.addConstraint(Sketcher.Constraint("Horizontal", 3))
sketch8.addConstraint(Sketcher.Constraint("DistanceY", 0, 2, 0, 1, 25.0))
sketch8.addConstraint(Sketcher.Constraint("DistanceX", -1, 1, 0, 2, 4.0))
sketch8.addConstraint(Sketcher.Constraint("DistanceY", -1, 1, 0, 2, 6.0))
sketch8.addConstraint(Sketcher.Constraint("DistanceX", 3, 2, 3, 1, 3.416198))
sketch8.addConstraint(Sketcher.Constraint("DistanceX", 1, 1, 1, 2, 19.736033))
pocket5 = doc.addObject("PartDesign::Pocket", "Pocket004")
body.addObject(pocket5)
pocket5.Profile = sketch8
pocket5.Length = 25

# Sketch on XZ plane
sketch9 = doc.addObject("Sketcher::SketchObject", "Sketch008")
body.addObject(sketch9)
sketch9.AttachmentSupport = (doc.XZ_Plane, [""])
sketch9.MapMode = "FlatFace"
sketch9.AttachmentOffset = App.Placement(Vector(0, 0, -3), App.Rotation())
sketch9.addGeometry(Part.LineSegment(Vector(-4, 31, 0), Vector(-4, 6, 0)), False)
sketch9.addGeometry(Part.LineSegment(Vector(-4, 6, 0), Vector(-20.819366, 6, 0)), False)
sketch9.addGeometry(Part.LineSegment(Vector(-20.819366, 6, 0), Vector(-7.416198, 31, 0)), False)
sketch9.addGeometry(Part.LineSegment(Vector(-7.416198, 31, 0), Vector(-4, 31, 0)), False)
sketch9.addConstraint(Sketcher.Constraint("Coincident", 0, 2, 1, 1))
sketch9.addConstraint(Sketcher.Constraint("Coincident", 1, 2, 2, 1))
sketch9.addConstraint(Sketcher.Constraint("Coincident", 2, 2, 3, 1))
sketch9.addConstraint(Sketcher.Constraint("Coincident", 3, 2, 0, 1))
sketch9.addConstraint(Sketcher.Constraint("Vertical", 0))
sketch9.addConstraint(Sketcher.Constraint("Horizontal", 1))
sketch9.addConstraint(Sketcher.Constraint("Horizontal", 3))
sketch9.addConstraint(Sketcher.Constraint("DistanceY", 0, 2, 0, 1, 25.0))
sketch9.addConstraint(Sketcher.Constraint("DistanceX", 0, 2, -1, 1, 4.0))
sketch9.addConstraint(Sketcher.Constraint("DistanceY", -1, 1, 0, 2, 6.0))
sketch9.addConstraint(Sketcher.Constraint("DistanceX", 3, 1, 3, 2, 3.416198))
sketch9.addConstraint(Sketcher.Constraint("DistanceX", 1, 2, 1, 1, 16.819366))
pocket6 = doc.addObject("PartDesign::Pocket", "Pocket005")
body.addObject(pocket6)
pocket6.Profile = sketch9
pocket6.Length = 25
pocket6.Reversed = True

# Sketch on YZ plane
sketch10 = doc.addObject("Sketcher::SketchObject", "Sketch009")
body.addObject(sketch10)
sketch10.AttachmentSupport = (doc.YZ_Plane, [""])
sketch10.MapMode = "FlatFace"
sketch10.AttachmentOffset = App.Placement(Vector(0, 0, -3), App.Rotation())
sketch10.addGeometry(Part.LineSegment(Vector(-4, 31, 0), Vector(-4, 6, 0)), False)
sketch10.addGeometry(Part.LineSegment(Vector(-4, 6, 0), Vector(-23.736033, 6, 0)), False)
sketch10.addGeometry(Part.LineSegment(Vector(-23.736033, 6, 0), Vector(-7.416198, 31, 0)), False)
sketch10.addGeometry(Part.LineSegment(Vector(-7.416198, 31, 0), Vector(-4, 31, 0)), False)
sketch10.addConstraint(Sketcher.Constraint("Coincident", 0, 2, 1, 1))
sketch10.addConstraint(Sketcher.Constraint("Coincident", 1, 2, 2, 1))
sketch10.addConstraint(Sketcher.Constraint("Coincident", 2, 2, 3, 1))
sketch10.addConstraint(Sketcher.Constraint("Coincident", 3, 2, 0, 1))
sketch10.addConstraint(Sketcher.Constraint("Vertical", 0))
sketch10.addConstraint(Sketcher.Constraint("Horizontal", 1))
sketch10.addConstraint(Sketcher.Constraint("Horizontal", 3))
sketch10.addConstraint(Sketcher.Constraint("DistanceY", 0, 2, 0, 1, 25.0))
sketch10.addConstraint(Sketcher.Constraint("DistanceX", 0, 2, -1, 1, 4.0))
sketch10.addConstraint(Sketcher.Constraint("DistanceY", -1, 1, 0, 2, 6.0))
sketch10.addConstraint(Sketcher.Constraint("DistanceX", 3, 1, 3, 2, 3.416198))
sketch10.addConstraint(Sketcher.Constraint("DistanceX", 1, 2, 1, 1, 19.736033))
pocket7 = doc.addObject("PartDesign::Pocket", "Pocket006")
body.addObject(pocket7)
pocket7.Profile = sketch10
pocket7.Length = 25
pocket7.Reversed = True

# Sketch on XZ plane
sketch11 = doc.addObject("Sketcher::SketchObject", "Sketch010")
body.addObject(sketch11)
sketch11.AttachmentSupport = (doc.XZ_Plane, [""])
sketch11.MapMode = "FlatFace"
sketch11.AttachmentOffset = App.Placement(Vector(0, 0, -3), App.Rotation())
sketch11.addGeometry(Part.LineSegment(Vector(4, 6, 0), Vector(4, 31, 0)), False)
sketch11.addGeometry(Part.LineSegment(Vector(4, 31, 0), Vector(7.416198, 31, 0)), False)
sketch11.addGeometry(Part.LineSegment(Vector(7.416198, 31, 0), Vector(20.819366, 6, 0)), False)
sketch11.addGeometry(Part.LineSegment(Vector(20.819366, 6, 0), Vector(4, 6, 0)), False)
sketch11.addConstraint(Sketcher.Constraint("Coincident", 0, 2, 1, 1))
sketch11.addConstraint(Sketcher.Constraint("Coincident", 1, 2, 2, 1))
sketch11.addConstraint(Sketcher.Constraint("Coincident", 2, 2, 3, 1))
sketch11.addConstraint(Sketcher.Constraint("Coincident", 3, 2, 0, 1))
sketch11.addConstraint(Sketcher.Constraint("Vertical", 0))
sketch11.addConstraint(Sketcher.Constraint("Horizontal", 1))
sketch11.addConstraint(Sketcher.Constraint("Horizontal", 3))
sketch11.addConstraint(Sketcher.Constraint("DistanceY", 0, 1, 0, 2, 25.0))
sketch11.addConstraint(Sketcher.Constraint("DistanceX", -1, 1, 0, 2, 4.0))
sketch11.addConstraint(Sketcher.Constraint("DistanceY", -1, 1, 0, 2, 31.0))
sketch11.addConstraint(Sketcher.Constraint("DistanceX", 1, 1, 1, 2, 3.416198))
sketch11.addConstraint(Sketcher.Constraint("DistanceX", 3, 2, 3, 1, 16.819366))
pocket8 = doc.addObject("PartDesign::Pocket", "Pocket007")
body.addObject(pocket8)
pocket8.Profile = sketch11
pocket8.Length = 25
pocket8.Reversed = True
body2 = doc.addObject("PartDesign::Body", "Body001")

# Sketch on XY plane
sketch12 = doc.addObject("Sketcher::SketchObject", "Sketch011")
body2.addObject(sketch12)
sketch12.AttachmentSupport = (doc.getObject("XY_Plane001"), [""])
sketch12.MapMode = "FlatFace"
sketch12.addGeometry(Part.Circle(Vector(0, 0, 0), Vector(0, 0, 1), 3.110058), False)
sketch12.addGeometry(Part.Circle(Vector(0, 0, 0), Vector(0, 0, 1), 2.751911), False)
sketch12.addConstraint(Sketcher.Constraint("Coincident", 0, 3, -1, 1))
sketch12.addConstraint(Sketcher.Constraint("Coincident", 1, 3, -1, 1))
sketch12.addConstraint(Sketcher.Constraint("Diameter", 0, 6.220116))
sketch12.addConstraint(Sketcher.Constraint("Diameter", 1, 5.503823))
pad4 = doc.addObject("PartDesign::Pad", "Pad003")
body2.addObject(pad4)
pad4.Profile = sketch12
pad4.Length = 6

doc.recompute()
